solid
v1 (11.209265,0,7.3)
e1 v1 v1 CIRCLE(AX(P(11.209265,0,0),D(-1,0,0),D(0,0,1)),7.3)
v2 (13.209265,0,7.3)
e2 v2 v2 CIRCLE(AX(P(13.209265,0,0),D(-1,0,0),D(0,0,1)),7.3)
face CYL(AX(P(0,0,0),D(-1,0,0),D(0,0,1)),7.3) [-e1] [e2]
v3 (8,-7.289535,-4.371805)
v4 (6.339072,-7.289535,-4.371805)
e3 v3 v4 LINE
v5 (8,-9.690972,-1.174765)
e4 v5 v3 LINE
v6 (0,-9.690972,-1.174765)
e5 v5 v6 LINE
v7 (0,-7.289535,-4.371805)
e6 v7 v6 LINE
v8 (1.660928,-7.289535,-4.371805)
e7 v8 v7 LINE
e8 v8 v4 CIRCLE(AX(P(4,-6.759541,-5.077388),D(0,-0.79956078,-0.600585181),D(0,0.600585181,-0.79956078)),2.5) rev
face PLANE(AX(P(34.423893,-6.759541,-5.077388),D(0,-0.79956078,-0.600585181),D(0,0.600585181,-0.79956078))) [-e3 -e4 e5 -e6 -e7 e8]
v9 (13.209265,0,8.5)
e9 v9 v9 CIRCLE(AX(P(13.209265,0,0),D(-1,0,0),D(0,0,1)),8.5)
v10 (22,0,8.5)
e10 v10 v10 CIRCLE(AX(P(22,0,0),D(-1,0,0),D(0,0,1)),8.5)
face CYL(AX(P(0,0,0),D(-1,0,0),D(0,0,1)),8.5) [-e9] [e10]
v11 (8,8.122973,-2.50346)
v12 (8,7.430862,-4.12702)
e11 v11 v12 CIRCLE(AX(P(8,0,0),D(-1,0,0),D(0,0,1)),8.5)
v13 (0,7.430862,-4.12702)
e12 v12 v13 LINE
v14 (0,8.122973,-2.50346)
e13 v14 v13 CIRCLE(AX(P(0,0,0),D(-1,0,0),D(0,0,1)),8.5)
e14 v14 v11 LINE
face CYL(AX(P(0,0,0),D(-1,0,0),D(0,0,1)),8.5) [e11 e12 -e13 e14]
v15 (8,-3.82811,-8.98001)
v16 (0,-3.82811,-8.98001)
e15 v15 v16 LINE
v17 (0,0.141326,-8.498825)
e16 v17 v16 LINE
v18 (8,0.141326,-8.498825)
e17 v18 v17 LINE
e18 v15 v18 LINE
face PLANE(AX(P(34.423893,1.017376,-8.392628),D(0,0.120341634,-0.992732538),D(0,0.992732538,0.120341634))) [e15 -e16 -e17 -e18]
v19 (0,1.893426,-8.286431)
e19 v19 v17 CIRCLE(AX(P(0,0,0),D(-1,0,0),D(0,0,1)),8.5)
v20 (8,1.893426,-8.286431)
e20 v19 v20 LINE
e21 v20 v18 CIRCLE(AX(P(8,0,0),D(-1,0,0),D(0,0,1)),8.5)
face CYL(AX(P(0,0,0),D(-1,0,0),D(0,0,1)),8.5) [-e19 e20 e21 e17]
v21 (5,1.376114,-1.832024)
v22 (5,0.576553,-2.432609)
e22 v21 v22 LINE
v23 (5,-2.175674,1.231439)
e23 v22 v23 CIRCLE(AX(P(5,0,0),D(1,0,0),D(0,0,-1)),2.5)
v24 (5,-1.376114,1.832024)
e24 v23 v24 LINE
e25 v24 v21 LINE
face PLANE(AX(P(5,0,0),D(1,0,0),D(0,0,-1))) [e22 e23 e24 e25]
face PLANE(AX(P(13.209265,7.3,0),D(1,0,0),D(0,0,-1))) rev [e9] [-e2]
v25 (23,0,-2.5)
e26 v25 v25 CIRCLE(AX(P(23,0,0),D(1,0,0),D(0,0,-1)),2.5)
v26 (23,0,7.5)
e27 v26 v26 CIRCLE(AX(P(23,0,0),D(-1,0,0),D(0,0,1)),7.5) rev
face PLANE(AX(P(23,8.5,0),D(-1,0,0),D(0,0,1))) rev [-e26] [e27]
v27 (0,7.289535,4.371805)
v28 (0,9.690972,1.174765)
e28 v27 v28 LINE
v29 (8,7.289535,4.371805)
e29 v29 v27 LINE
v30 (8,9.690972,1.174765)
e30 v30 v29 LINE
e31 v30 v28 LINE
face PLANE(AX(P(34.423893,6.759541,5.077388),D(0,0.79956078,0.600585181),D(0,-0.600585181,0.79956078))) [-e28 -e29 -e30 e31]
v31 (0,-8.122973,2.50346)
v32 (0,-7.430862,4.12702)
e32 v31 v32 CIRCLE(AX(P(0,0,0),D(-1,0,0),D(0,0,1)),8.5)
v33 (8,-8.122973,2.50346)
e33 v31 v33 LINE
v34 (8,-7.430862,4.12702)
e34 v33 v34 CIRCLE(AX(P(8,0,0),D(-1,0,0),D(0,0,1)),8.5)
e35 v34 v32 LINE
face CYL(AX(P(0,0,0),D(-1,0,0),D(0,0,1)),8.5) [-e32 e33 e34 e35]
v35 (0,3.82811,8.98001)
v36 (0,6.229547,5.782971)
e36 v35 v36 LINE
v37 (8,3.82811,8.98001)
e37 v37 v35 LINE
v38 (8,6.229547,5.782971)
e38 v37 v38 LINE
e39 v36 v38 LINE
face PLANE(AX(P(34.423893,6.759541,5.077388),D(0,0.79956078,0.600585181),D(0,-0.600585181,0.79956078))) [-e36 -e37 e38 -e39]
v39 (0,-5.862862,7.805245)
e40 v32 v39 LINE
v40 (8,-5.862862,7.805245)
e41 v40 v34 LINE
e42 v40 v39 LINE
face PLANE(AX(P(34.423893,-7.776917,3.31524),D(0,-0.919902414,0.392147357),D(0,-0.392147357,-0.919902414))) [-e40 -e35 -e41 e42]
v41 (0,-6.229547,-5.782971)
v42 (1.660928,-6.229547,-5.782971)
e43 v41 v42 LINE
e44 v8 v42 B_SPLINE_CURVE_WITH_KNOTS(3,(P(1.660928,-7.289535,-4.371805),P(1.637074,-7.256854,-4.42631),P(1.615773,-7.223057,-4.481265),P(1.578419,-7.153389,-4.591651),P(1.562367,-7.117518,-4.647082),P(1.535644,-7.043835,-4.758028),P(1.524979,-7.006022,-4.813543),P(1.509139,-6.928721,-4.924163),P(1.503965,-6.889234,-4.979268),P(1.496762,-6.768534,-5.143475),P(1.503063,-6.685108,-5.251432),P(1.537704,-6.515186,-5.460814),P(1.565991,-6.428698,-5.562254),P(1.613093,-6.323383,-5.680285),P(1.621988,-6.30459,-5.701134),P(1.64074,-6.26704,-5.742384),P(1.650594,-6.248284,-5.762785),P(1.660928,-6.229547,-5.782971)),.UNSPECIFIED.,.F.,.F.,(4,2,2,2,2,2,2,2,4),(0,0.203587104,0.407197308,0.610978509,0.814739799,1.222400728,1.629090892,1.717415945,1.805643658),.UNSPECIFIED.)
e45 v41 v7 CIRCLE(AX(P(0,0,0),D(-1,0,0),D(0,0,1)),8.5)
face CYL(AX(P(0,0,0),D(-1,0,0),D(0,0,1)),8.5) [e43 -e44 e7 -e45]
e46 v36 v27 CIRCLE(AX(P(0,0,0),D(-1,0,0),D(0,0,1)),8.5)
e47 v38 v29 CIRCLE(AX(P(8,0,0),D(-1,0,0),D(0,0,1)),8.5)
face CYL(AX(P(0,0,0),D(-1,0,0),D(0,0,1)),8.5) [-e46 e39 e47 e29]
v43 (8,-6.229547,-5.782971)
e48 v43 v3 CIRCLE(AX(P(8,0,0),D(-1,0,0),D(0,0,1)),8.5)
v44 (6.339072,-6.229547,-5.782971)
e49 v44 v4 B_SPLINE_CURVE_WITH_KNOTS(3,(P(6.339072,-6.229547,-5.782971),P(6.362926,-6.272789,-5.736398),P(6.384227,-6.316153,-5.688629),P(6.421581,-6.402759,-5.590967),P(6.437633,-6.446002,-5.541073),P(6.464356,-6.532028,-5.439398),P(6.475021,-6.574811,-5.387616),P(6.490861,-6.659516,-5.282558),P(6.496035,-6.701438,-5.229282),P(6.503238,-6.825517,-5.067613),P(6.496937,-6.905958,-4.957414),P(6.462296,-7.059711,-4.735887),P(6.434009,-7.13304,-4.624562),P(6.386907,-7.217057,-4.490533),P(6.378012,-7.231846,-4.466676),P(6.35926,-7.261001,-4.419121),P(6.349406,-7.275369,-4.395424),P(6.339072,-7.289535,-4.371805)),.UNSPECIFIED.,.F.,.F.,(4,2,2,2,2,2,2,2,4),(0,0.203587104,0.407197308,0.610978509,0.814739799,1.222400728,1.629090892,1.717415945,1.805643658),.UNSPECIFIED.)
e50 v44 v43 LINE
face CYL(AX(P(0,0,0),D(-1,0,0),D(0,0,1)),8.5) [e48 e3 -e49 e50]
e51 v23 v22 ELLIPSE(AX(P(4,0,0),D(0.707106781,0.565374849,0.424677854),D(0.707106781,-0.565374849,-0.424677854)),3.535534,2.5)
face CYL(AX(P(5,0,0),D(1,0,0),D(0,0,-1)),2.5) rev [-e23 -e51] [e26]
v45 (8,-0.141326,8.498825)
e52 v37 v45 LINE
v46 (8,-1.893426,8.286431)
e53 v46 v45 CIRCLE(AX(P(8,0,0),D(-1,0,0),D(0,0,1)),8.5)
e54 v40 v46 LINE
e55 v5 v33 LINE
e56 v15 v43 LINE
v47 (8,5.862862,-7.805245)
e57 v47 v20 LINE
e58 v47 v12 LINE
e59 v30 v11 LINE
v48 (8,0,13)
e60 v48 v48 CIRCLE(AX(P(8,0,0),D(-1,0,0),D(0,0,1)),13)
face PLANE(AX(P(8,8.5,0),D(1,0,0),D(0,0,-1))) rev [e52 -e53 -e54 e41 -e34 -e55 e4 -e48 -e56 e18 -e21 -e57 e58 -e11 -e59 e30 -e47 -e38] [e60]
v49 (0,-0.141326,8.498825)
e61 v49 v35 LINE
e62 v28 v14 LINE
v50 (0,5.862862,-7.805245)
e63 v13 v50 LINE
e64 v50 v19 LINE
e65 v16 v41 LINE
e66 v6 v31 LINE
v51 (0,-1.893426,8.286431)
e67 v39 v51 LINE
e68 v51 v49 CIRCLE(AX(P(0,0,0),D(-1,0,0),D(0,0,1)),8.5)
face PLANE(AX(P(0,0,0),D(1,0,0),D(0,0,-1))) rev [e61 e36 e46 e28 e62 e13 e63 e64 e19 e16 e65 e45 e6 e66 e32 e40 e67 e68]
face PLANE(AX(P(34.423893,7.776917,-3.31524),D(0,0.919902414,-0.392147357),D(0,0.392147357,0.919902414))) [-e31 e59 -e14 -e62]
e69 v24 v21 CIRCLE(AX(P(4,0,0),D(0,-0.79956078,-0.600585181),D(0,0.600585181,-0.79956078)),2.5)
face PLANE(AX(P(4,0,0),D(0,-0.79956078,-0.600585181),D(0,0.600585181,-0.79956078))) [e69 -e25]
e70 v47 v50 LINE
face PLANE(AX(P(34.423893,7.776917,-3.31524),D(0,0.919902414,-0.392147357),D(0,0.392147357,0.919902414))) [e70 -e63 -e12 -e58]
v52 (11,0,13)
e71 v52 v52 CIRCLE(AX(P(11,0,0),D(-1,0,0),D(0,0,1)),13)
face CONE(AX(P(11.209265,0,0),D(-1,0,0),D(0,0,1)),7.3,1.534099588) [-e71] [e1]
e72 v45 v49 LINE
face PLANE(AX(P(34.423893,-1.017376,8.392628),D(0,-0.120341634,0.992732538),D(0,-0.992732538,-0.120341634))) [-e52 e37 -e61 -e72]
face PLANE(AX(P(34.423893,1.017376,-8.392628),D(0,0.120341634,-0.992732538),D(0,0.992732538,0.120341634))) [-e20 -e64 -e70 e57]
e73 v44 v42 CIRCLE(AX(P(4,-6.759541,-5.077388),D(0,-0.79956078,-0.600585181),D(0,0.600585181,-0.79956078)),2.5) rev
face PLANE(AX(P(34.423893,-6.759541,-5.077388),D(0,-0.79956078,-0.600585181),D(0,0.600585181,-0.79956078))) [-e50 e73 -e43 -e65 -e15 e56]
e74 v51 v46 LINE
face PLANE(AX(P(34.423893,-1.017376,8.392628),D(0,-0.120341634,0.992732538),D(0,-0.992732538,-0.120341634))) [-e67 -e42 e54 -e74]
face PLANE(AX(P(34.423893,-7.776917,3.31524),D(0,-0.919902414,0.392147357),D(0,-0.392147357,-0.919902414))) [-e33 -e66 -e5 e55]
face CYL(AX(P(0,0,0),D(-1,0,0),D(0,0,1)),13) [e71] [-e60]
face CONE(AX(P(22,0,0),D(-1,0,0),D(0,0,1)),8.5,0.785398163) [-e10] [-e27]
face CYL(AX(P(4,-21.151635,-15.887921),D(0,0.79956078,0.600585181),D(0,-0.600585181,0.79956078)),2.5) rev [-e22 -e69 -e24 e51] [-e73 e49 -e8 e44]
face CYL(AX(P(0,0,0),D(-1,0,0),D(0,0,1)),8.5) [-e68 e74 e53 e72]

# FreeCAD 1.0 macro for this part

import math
import FreeCAD as App
import Part
import Sketcher
from FreeCAD import Vector
Q = App.Units.Quantity


def edges_at(feature, points):
    """Names of the edges that pass closest to the given points."""
    edges = feature.Shape.Edges
    near = lambda p: min(range(len(edges)), key=lambda i: edges[i].distToShape(Part.Vertex(*p))[0])
    return sorted({f"Edge{near(p) + 1}" for p in points})


def add_polygon(sketch, points):
    """Adds a closed chain of lines whose ends are joined by coincident constraints."""
    first, n = sketch.GeometryCount, len(points)
    for a, b in zip(points, points[1:] + points[:1]):
        sketch.addGeometry(Part.LineSegment(App.Vector(*a, 0), App.Vector(*b, 0)), False)
    for i in range(n):
        sketch.addConstraint(Sketcher.Constraint("Coincident", first + i, 2, first + (i + 1) % n, 1))

doc = App.newDocument("Part")
body = doc.addObject("PartDesign::Body", "Body")

# Sketch on XY plane
sketch1 = body.newObject("Sketcher::SketchObject", "Sketch")
sketch1.AttachmentSupport = (doc.getObject("XY_Plane"), [""])
sketch1.MapMode = "FlatFace"
add_polygon(sketch1, [(0, 8.5), (0, 0), (23, 0), (23, 8.5), (13.2, 8.5), (13.2, 7.3), (11.2, 7.3), (11, 13), (8, 13), (8, 8.5)])  # lines 0-9
sketch1.addConstraint(Sketcher.Constraint("Vertical", 0))
sketch1.addConstraint(Sketcher.Constraint("Horizontal", 1))
sketch1.addConstraint(Sketcher.Constraint("Vertical", 2))
sketch1.addConstraint(Sketcher.Constraint("Horizontal", 3))
sketch1.addConstraint(Sketcher.Constraint("Vertical", 4))
sketch1.addConstraint(Sketcher.Constraint("Horizontal", 5))
sketch1.addConstraint(Sketcher.Constraint("Horizontal", 7))
sketch1.addConstraint(Sketcher.Constraint("Vertical", 8))
sketch1.addConstraint(Sketcher.Constraint("Horizontal", 9))
sketch1.addConstraint(Sketcher.Constraint("Coincident", 0, 2, -1, 1))
sketch1.addConstraint(Sketcher.Constraint("Horizontal", 3, 2, 8, 2))
sketch1.addConstraint(Sketcher.Constraint("DistanceX", 1, 1, 1, 2, Q("23 mm")))
sketch1.addConstraint(Sketcher.Constraint("DistanceX", 5, 2, 5, 1, Q("2 mm")))
sketch1.addConstraint(Sketcher.Constraint("DistanceX", 7, 2, 7, 1, Q("3 mm")))
sketch1.addConstraint(Sketcher.Constraint("DistanceX", 9, 2, 9, 1, Q("8 mm")))
sketch1.addConstraint(Sketcher.Constraint("DistanceY", 0, 2, 0, 1, Q("8.5 mm")))
sketch1.addConstraint(Sketcher.Constraint("DistanceY", 4, 2, 4, 1, Q("1.2 mm")))
sketch1.addConstraint(Sketcher.Constraint("DistanceY", 8, 2, 8, 1, Q("4.5 mm")))
sketch1.addConstraint(Sketcher.Constraint("Distance", 6, Q("5.70384 mm")))
revolution = body.newObject("PartDesign::Revolution", "Revolution")
revolution.Profile = sketch1
revolution.ReferenceAxis = (sketch1, ["H_Axis"])
revolution.Angle = 360

# Sketch on YZ plane
sketch2 = body.newObject("Sketcher::SketchObject", "Sketch001")
sketch2.AttachmentSupport = (doc.getObject("YZ_Plane"), [""])
sketch2.MapMode = "FlatFace"
sketch2.AttachmentOffset = App.Placement(Vector(0, 0, 8), App.Rotation())
sketch2.addGeometry(Part.LineSegment(Vector(-7.3, -4.4, 0), Vector(-9.7, -1.2, 0)), False)
sketch2.addGeometry(Part.LineSegment(Vector(-9.7, -1.2, 0), Vector(-8.1, 2.5, 0)), False)
sketch2.addGeometry(Part.ArcOfCircle(Part.Circle(Vector(0, 0, 0), Vector(0, 0, 1), 8.5), math.radians(163), math.radians(211)), False)
sketch2.addGeometry(Part.ArcOfCircle(Part.Circle(Vector(0, 0, 0), Vector(0, 0, 1), 8.5), math.radians(103), math.radians(151)), False)
sketch2.addGeometry(Part.LineSegment(Vector(-7.4, 4.1, 0), Vector(-5.9, 7.8, 0)), False)
sketch2.addGeometry(Part.LineSegment(Vector(-5.9, 7.8, 0), Vector(-1.9, 8.3, 0)), False)
sketch2.addGeometry(Part.LineSegment(Vector(-3.8, -9, 0), Vector(-6.2, -5.8, 0)), False)
sketch2.addGeometry(Part.ArcOfCircle(Part.Circle(Vector(0, 0, 0), Vector(0, 0, 1), 8.5), math.radians(-137), math.radians(-89)), False)
sketch2.addGeometry(Part.LineSegment(Vector(0.1, -8.5, 0), Vector(-3.8, -9, 0)), False)
sketch2.addGeometry(Part.ArcOfCircle(Part.Circle(Vector(0, 0, 0), Vector(0, 0, 1), 8.5), math.radians(43), math.radians(91)), False)
sketch2.addGeometry(Part.LineSegment(Vector(-0.1, 8.5, 0), Vector(3.8, 9, 0)), False)
sketch2.addGeometry(Part.LineSegment(Vector(3.8, 9, 0), Vector(6.2, 5.8, 0)), False)
sketch2.addGeometry(Part.LineSegment(Vector(5.9, -7.8, 0), Vector(1.9, -8.3, 0)), False)
sketch2.addGeometry(Part.ArcOfCircle(Part.Circle(Vector(0, 0, 0), Vector(0, 0, 1), 8.5), math.radians(-77), math.radians(-29)), False)
sketch2.addGeometry(Part.LineSegment(Vector(7.4, -4.1, 0), Vector(5.9, -7.8, 0)), False)
sketch2.addGeometry(Part.LineSegment(Vector(9.7, 1.2, 0), Vector(8.1, -2.5, 0)), False)
sketch2.addGeometry(Part.ArcOfCircle(Part.Circle(Vector(0, 0, 0), Vector(0, 0, 1), 8.5), math.radians(-17), math.radians(31)), False)
sketch2.addGeometry(Part.LineSegment(Vector(7.3, 4.4, 0), Vector(9.7, 1.2, 0)), False)
sketch2.addConstraint(Sketcher.Constraint("Coincident", 0, 2, 1, 1))
sketch2.addConstraint(Sketcher.Constraint("Coincident", 1, 2, 2, 1))
sketch2.addConstraint(Sketcher.Constraint("Coincident", 2, 2, 0, 1))
sketch2.addConstraint(Sketcher.Constraint("Coincident", 3, 2, 4, 1))
sketch2.addConstraint(Sketcher.Constraint("Coincident", 4, 2, 5, 1))
sketch2.addConstraint(Sketcher.Constraint("Coincident", 5, 2, 3, 1))
sketch2.addConstraint(Sketcher.Constraint("Coincident", 6, 2, 7, 1))
sketch2.addConstraint(Sketcher.Constraint("Coincident", 7, 2, 8, 1))
sketch2.addConstraint(Sketcher.Constraint("Coincident", 8, 2, 6, 1))
sketch2.addConstraint(Sketcher.Constraint("Coincident", 9, 2, 10, 1))
sketch2.addConstraint(Sketcher.Constraint("Coincident", 10, 2, 11, 1))
sketch2.addConstraint(Sketcher.Constraint("Coincident", 11, 2, 9, 1))
sketch2.addConstraint(Sketcher.Constraint("Coincident", 12, 2, 13, 1))
sketch2.addConstraint(Sketcher.Constraint("Coincident", 13, 2, 14, 1))
sketch2.addConstraint(Sketcher.Constraint("Coincident", 14, 2, 12, 1))
sketch2.addConstraint(Sketcher.Constraint("Coincident", 15, 2, 16, 1))
sketch2.addConstraint(Sketcher.Constraint("Coincident", 16, 2, 17, 1))
sketch2.addConstraint(Sketcher.Constraint("Coincident", 17, 2, 15, 1))
sketch2.addConstraint(Sketcher.Constraint("Coincident", 2, 3, -1, 1))
sketch2.addConstraint(Sketcher.Constraint("Coincident", 3, 3, -1, 1))
sketch2.addConstraint(Sketcher.Constraint("Coincident", 7, 3, -1, 1))
sketch2.addConstraint(Sketcher.Constraint("Coincident", 9, 3, -1, 1))
sketch2.addConstraint(Sketcher.Constraint("Coincident", 13, 3, -1, 1))
sketch2.addConstraint(Sketcher.Constraint("Coincident", 16, 3, -1, 1))
sketch2.addConstraint(Sketcher.Constraint("Equal", 2, 3))
sketch2.addConstraint(Sketcher.Constraint("Equal", 3, 7))
sketch2.addConstraint(Sketcher.Constraint("Equal", 7, 9))
sketch2.addConstraint(Sketcher.Constraint("Equal", 9, 13))
sketch2.addConstraint(Sketcher.Constraint("Equal", 13, 16))
sketch2.addConstraint(Sketcher.Constraint("Symmetric", 8, 2, 10, 2, -1, 1))
sketch2.addConstraint(Sketcher.Constraint("Symmetric", 4, 2, 14, 2, -1, 1))
sketch2.addConstraint(Sketcher.Constraint("Symmetric", 0, 2, 17, 2, -1, 1))
sketch2.addConstraint(Sketcher.Constraint("Parallel", 1, 4))
sketch2.addConstraint(Sketcher.Constraint("Parallel", 0, 6))
sketch2.addConstraint(Sketcher.Constraint("Parallel", 5, 8))
sketch2.addConstraint(Sketcher.Constraint("Parallel", 8, 10))
sketch2.addConstraint(Sketcher.Constraint("Parallel", 6, 11))
sketch2.addConstraint(Sketcher.Constraint("Parallel", 10, 12))
sketch2.addConstraint(Sketcher.Constraint("Parallel", 4, 14))
sketch2.addConstraint(Sketcher.Constraint("Parallel", 14, 15))
sketch2.addConstraint(Sketcher.Constraint("Parallel", 11, 17))
sketch2.addConstraint(Sketcher.Constraint("Equal", 0, 1))
sketch2.addConstraint(Sketcher.Constraint("Equal", 1, 4))
sketch2.addConstraint(Sketcher.Constraint("Equal", 4, 5))
sketch2.addConstraint(Sketcher.Constraint("Equal", 5, 6))
sketch2.addConstraint(Sketcher.Constraint("Equal", 6, 8))
sketch2.addConstraint(Sketcher.Constraint("Radius", 2, Q("8.5 mm")))
sketch2.addConstraint(Sketcher.Constraint("DistanceX", 0, 2, 1, 2, Q("1.567999 mm")))
sketch2.addConstraint(Sketcher.Constraint("DistanceX", 5, 2, 9, 2, Q("1.7521 mm")))
sketch2.addConstraint(Sketcher.Constraint("DistanceY", -1, 1, 1, 2, Q("2.50346 mm")))
sketch2.addConstraint(Sketcher.Constraint("DistanceX", 3, 2, -1, 1, Q("7.430862 mm")))
pad1 = body.newObject("PartDesign::Pad", "Pad")
pad1.Profile = sketch2
pad1.Length = 8
pad1.Reversed = True
doc.recompute()

chamfer = body.newObject("PartDesign::Chamfer", "Chamfer")
chamfer.Base = (pad1, edges_at(pad1, [(23, 0, -8.5)]))
chamfer.Size = 1

# Sketch on YZ plane
sketch3 = body.newObject("Sketcher::SketchObject", "Sketch002")
sketch3.AttachmentSupport = (doc.getObject("YZ_Plane"), [""])
sketch3.MapMode = "FlatFace"
sketch3.AttachmentOffset = App.Placement(Vector(0, 0, 23), App.Rotation())
sketch3.addGeometry(Part.Circle(Vector(0, 0, 0), Vector(0, 0, 1), 2.5), False)
sketch3.addConstraint(Sketcher.Constraint("Coincident", 0, 3, -1, 1))
sketch3.addConstraint(Sketcher.Constraint("Diameter", 0, Q("5 mm")))
pocket1 = body.newObject("PartDesign::Pocket", "Pocket")
pocket1.Profile = sketch3
pocket1.Length = 18

# Sketch on an angled plane
sketch4 = body.newObject("Sketcher::SketchObject", "Sketch003")
sketch4.Placement = App.Placement(Vector(0, -6.759541, -5.077388), App.Rotation(Vector(1, 0, 0), Vector(0, -0.600585181, 0.79956078), Vector(0, -0.79956078, -0.600585181), "ZXY"))
sketch4.addGeometry(Part.Circle(Vector(4, 0, 0), Vector(0, 0, 1), 2.5), False)
sketch4.addConstraint(Sketcher.Constraint("PointOnObject", 0, 3, -1))
sketch4.addConstraint(Sketcher.Constraint("Diameter", 0, Q("5 mm")))
sketch4.addConstraint(Sketcher.Constraint("DistanceX", -1, 1, 0, 3, Q("4 mm")))
pocket2 = body.newObject("PartDesign::Pocket", "Pocket001")
pocket2.Profile = sketch4
pocket2.Type = "TwoLengths"
pocket2.Length = 18
pocket2.Length2 = 8.454068
pocket2.Reversed = True

doc.recompute()
